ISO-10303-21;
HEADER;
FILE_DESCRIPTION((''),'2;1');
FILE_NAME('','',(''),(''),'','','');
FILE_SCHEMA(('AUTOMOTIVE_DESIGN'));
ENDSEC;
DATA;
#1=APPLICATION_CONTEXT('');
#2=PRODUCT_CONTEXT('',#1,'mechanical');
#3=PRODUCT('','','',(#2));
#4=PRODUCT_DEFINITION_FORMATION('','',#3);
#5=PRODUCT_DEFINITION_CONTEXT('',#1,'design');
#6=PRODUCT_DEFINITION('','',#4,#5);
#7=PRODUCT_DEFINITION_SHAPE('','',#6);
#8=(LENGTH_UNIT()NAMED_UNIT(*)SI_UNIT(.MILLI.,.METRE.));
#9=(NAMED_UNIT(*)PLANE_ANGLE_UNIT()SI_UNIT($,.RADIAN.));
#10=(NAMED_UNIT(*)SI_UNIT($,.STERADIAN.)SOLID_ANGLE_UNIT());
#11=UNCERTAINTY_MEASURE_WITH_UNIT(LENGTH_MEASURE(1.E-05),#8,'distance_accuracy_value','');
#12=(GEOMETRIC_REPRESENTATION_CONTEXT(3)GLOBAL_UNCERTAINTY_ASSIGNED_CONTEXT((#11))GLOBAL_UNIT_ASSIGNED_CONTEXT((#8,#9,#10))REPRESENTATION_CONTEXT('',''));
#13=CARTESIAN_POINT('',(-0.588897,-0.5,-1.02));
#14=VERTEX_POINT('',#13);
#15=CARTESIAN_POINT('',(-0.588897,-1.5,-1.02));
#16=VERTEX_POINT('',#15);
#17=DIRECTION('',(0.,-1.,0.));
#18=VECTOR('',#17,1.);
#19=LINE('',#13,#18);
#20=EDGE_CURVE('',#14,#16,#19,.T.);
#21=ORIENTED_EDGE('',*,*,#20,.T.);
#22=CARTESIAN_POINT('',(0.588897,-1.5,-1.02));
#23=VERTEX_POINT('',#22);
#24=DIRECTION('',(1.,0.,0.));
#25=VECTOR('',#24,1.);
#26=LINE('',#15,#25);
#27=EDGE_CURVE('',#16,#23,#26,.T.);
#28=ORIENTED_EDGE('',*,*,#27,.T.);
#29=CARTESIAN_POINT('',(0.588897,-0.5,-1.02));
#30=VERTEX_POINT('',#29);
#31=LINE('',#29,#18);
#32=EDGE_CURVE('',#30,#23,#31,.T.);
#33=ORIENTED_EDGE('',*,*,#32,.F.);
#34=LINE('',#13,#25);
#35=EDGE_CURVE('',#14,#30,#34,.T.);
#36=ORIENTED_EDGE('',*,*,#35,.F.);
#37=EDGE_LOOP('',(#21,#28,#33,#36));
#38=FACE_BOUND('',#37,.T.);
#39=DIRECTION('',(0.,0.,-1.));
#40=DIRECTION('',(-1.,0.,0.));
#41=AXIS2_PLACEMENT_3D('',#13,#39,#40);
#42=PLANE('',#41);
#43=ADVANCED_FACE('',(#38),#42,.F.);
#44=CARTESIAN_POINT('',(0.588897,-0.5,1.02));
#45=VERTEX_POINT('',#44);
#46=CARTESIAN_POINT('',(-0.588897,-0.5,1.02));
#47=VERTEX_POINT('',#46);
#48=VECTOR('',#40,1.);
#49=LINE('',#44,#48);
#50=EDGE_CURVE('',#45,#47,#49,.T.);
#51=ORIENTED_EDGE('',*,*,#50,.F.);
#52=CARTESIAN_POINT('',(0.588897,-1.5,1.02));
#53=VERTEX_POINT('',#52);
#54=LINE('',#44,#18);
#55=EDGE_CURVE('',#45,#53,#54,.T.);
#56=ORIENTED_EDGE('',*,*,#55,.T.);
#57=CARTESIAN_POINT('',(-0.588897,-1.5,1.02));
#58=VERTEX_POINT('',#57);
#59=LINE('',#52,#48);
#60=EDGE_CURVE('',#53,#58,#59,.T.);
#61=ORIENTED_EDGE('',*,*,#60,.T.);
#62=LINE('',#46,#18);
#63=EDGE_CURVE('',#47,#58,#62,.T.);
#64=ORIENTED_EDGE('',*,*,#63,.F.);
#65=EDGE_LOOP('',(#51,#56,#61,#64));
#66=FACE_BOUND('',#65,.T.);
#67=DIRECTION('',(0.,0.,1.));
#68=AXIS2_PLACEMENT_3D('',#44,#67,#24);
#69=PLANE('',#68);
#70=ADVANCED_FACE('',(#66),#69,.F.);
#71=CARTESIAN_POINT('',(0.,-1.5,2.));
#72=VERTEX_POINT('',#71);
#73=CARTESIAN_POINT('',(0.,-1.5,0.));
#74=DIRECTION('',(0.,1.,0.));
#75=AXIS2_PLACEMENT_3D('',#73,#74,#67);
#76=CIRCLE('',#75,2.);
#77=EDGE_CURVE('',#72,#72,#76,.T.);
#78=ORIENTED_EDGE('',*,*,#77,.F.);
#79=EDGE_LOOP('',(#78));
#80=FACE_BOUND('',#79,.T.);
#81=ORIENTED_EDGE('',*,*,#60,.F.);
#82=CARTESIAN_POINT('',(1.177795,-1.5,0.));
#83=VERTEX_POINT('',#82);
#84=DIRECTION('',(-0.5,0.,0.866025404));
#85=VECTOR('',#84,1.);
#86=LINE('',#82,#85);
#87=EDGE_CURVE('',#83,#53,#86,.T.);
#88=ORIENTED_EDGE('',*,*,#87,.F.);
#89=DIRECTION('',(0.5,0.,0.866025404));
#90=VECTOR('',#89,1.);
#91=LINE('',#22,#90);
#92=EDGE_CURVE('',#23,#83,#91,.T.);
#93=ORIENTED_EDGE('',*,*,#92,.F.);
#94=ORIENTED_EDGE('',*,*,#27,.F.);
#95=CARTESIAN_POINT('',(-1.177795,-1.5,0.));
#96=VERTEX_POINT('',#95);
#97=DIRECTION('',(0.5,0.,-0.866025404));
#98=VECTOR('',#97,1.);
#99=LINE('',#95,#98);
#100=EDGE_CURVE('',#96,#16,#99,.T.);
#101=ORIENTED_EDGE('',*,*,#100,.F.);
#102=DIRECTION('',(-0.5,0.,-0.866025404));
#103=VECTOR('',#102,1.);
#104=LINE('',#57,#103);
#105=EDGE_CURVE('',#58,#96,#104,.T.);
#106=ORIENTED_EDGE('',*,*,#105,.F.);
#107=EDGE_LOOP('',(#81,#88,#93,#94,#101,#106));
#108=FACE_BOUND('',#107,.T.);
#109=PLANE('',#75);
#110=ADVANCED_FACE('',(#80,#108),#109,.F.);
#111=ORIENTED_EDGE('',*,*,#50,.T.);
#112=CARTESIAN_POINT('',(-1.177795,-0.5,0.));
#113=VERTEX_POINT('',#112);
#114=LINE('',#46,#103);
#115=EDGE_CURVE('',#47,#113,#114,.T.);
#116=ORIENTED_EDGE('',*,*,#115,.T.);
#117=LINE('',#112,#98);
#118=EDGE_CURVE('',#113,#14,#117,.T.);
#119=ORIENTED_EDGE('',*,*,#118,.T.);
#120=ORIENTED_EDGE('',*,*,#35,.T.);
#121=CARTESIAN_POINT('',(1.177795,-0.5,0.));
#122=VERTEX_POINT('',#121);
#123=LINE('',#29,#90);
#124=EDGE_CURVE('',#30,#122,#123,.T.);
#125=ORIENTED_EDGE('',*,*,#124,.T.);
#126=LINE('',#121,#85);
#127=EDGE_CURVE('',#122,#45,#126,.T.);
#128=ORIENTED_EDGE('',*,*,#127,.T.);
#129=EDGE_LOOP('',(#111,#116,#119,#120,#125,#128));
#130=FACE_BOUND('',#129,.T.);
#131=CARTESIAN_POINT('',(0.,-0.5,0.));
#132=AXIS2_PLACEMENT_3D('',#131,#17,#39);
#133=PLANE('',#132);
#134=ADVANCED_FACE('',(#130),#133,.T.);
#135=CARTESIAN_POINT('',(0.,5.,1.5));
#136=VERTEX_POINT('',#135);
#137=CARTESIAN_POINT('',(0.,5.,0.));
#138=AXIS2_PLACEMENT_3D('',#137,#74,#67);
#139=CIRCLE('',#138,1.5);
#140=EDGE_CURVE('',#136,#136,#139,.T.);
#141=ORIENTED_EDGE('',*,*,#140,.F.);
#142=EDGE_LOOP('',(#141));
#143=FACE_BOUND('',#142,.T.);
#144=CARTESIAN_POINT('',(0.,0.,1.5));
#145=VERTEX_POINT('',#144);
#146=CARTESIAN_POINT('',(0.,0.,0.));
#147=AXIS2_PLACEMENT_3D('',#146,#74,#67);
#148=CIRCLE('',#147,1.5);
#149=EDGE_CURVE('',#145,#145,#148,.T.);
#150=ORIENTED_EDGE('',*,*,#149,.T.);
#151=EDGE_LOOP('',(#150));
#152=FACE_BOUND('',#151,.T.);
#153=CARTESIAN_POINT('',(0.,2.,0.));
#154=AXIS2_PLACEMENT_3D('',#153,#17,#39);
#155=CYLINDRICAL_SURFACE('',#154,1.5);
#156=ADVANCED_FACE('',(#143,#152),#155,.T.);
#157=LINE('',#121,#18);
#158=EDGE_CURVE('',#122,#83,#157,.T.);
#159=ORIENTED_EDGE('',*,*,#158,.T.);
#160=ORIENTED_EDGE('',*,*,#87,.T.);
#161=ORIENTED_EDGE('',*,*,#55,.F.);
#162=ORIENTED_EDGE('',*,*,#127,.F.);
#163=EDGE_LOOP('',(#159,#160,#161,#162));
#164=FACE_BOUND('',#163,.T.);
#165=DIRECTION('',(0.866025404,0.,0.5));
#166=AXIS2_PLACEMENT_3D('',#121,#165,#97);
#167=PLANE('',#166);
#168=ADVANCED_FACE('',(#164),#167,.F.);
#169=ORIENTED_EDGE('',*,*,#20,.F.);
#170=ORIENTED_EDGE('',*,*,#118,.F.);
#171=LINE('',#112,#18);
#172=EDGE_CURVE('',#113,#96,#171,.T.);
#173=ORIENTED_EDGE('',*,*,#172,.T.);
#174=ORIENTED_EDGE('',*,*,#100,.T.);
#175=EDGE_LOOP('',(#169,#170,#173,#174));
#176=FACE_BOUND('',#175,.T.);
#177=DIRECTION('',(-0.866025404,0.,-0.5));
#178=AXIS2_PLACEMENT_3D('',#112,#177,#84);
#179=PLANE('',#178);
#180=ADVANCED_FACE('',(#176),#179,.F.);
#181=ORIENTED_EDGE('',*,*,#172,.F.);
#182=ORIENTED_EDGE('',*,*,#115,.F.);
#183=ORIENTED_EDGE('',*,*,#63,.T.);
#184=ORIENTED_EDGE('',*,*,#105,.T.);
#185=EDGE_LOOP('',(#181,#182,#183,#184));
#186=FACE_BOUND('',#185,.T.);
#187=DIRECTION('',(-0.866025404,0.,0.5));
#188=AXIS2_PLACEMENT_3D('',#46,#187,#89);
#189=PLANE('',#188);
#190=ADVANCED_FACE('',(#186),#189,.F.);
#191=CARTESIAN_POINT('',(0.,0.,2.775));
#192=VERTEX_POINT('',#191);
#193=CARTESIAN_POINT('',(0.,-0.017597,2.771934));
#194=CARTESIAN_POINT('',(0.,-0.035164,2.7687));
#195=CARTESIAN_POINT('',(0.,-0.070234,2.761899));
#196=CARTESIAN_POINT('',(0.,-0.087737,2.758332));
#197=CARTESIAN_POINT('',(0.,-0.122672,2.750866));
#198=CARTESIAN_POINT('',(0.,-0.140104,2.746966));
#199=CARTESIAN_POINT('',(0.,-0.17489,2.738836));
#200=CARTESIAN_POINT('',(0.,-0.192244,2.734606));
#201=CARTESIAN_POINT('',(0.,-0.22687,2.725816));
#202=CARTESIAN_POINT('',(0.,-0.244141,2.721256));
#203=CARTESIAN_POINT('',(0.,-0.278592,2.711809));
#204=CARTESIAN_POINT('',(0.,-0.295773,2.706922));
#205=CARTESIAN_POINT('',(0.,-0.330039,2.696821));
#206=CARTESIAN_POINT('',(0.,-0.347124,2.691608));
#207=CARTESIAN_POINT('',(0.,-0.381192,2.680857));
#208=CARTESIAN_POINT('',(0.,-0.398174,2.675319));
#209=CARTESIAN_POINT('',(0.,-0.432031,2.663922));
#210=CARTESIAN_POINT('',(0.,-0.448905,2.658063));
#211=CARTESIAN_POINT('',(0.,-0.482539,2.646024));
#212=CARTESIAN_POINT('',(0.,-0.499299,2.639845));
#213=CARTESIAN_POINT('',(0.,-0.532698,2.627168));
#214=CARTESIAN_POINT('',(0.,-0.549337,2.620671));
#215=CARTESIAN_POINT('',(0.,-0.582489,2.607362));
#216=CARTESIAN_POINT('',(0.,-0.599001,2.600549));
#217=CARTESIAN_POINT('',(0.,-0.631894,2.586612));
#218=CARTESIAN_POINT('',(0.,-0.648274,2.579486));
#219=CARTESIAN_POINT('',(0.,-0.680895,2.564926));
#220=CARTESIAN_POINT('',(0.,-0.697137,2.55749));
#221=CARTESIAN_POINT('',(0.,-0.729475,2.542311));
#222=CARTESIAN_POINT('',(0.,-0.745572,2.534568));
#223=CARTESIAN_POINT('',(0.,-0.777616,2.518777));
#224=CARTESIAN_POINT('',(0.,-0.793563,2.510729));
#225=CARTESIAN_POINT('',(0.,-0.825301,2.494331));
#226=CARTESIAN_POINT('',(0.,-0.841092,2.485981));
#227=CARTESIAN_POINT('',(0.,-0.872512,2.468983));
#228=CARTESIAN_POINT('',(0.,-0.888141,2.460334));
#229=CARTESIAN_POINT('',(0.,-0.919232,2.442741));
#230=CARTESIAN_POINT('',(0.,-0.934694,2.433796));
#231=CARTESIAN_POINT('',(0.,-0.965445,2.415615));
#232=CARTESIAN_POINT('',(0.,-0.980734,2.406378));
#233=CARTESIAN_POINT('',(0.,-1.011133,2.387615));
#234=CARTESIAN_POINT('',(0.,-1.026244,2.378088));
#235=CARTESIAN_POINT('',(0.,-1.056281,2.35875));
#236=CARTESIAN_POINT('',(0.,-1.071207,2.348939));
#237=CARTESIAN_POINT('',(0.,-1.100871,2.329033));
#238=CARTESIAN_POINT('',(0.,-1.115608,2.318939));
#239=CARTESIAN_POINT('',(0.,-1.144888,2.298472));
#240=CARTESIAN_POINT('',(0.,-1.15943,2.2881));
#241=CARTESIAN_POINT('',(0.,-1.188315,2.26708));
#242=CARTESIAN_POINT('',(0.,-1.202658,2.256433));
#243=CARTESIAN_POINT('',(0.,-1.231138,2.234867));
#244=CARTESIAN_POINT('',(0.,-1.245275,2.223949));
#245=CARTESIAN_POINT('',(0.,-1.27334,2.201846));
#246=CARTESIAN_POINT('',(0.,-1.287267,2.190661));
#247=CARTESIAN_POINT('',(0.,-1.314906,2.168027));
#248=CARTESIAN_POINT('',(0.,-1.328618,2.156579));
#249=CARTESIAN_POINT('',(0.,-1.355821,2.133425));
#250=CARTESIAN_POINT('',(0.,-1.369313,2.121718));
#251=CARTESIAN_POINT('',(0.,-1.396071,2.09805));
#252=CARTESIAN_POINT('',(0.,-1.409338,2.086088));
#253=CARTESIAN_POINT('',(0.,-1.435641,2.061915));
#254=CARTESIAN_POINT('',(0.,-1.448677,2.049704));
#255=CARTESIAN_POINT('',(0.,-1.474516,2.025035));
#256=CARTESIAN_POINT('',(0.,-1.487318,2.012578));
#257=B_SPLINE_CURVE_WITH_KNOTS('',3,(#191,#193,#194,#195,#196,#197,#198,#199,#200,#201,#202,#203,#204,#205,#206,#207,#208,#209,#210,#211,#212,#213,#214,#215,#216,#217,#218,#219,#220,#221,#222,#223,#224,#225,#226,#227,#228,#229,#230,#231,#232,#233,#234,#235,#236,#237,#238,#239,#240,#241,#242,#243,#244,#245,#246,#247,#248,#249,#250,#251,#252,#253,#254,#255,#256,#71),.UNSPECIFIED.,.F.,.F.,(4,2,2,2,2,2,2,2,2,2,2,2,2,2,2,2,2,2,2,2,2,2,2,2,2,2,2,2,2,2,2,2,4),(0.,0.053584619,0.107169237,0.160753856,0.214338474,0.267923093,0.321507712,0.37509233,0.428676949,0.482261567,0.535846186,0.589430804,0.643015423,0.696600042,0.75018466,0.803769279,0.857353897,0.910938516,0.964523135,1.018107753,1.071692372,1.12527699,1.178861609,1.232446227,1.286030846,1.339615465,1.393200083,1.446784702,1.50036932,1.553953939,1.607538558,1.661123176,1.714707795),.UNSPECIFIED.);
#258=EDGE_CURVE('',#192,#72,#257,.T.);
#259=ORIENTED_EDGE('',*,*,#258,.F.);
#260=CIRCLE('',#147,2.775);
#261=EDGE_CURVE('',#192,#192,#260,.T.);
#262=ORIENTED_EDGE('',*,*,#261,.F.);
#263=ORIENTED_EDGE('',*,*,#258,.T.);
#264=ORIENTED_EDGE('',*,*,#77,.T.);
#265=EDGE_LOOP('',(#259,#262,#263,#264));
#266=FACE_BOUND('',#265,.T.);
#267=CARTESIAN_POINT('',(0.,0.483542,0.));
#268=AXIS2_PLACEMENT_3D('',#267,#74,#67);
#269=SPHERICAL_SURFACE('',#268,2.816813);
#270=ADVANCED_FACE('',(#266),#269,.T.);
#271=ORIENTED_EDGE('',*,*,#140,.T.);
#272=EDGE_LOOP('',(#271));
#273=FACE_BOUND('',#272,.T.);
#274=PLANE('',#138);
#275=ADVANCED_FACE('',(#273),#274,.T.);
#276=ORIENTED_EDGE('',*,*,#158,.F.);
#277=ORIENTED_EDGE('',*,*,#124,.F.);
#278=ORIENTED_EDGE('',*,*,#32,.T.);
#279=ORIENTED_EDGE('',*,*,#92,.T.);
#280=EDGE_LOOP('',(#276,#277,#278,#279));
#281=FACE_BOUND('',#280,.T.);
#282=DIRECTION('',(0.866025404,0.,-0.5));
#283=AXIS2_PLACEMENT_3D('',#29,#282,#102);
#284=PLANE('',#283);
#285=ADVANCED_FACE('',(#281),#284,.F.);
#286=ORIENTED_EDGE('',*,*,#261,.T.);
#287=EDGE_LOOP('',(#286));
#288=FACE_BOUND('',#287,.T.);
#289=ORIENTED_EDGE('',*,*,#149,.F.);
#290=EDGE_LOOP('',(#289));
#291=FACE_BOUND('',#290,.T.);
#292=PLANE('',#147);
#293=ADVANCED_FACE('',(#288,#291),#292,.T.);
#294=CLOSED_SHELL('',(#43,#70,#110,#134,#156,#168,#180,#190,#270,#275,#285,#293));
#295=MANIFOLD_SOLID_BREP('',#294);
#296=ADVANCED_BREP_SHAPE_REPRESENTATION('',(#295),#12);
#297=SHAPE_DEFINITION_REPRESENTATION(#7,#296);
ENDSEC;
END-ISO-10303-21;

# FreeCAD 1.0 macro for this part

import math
import FreeCAD as App
import Part
import Sketcher
from FreeCAD import Vector
Q = App.Units.Quantity


def add_polygon(sketch, points):
    """Adds a closed chain of lines whose ends are joined by coincident constraints."""
    first, n = sketch.GeometryCount, len(points)
    for a, b in zip(points, points[1:] + points[:1]):
        sketch.addGeometry(Part.LineSegment(App.Vector(*a, 0), App.Vector(*b, 0)), False)
    for i in range(n):
        sketch.addConstraint(Sketcher.Constraint("Coincident", first + i, 2, first + (i + 1) % n, 1))

doc = App.newDocument("Part")
body = doc.addObject("PartDesign::Body", "Body")

sketch1 = body.newObject("Sketcher::SketchObject", "Sketch")
sketch1.AttachmentSupport = (doc.getObject("XZ_Plane"), [""])
sketch1.MapMode = "FlatFace"
sketch1.addGeometry(Part.Circle(Vector(0, 0, 0), Vector(0, 0, 1), 1.5), False)
sketch1.addConstraint([
    Sketcher.Constraint("Coincident", 0, 3, -1, 1),
    Sketcher.Constraint("Diameter", 0, Q("3 mm")),
])
pad1 = body.newObject("PartDesign::Pad", "Pad")
pad1.Profile = sketch1
pad1.Length = 2
pad1.Reversed = True

sketch2 = body.newObject("Sketcher::SketchObject", "Sketch001")
sketch2.AttachmentSupport = (doc.getObject("XZ_Plane"), [""])
sketch2.MapMode = "FlatFace"
sketch2.addGeometry(Part.Circle(Vector(0, 0, 0), Vector(0, 0, 1), 2.775), False)
sketch2.addConstraint([
    Sketcher.Constraint("Coincident", 0, 3, -1, 1),
    Sketcher.Constraint("Diameter", 0, Q("5.55 mm")),
])
pad2 = body.newObject("PartDesign::Pad", "Pad001")
pad2.Profile = sketch2
pad2.Length = 1.5

sketch3 = body.newObject("Sketcher::SketchObject", "Sketch002")
sketch3.AttachmentSupport = (doc.getObject("YZ_Plane"), [""])
sketch3.MapMode = "FlatFace"
sketch3.addGeometry([
    Part.LineSegment(Vector(0, 2.775, 0), Vector(-1.5, 2.775, 0)),
    Part.LineSegment(Vector(-1.5, 2.775, 0), Vector(-1.5, 2, 0)),
    Part.ArcOfCircle(Part.Circle(Vector(0.483542, 0, 0), Vector(0, 0, 1), 2.816813), math.radians(99.884504), math.radians(134.763279)),
], False)
sketch3.addConstraint([
    Sketcher.Constraint("Coincident", 0, 2, 1, 1),
    Sketcher.Constraint("Coincident", 1, 2, 2, 2),
    Sketcher.Constraint("Coincident", 2, 1, 0, 1),
    Sketcher.Constraint("Horizontal", 0),
    Sketcher.Constraint("Vertical", 1),
    Sketcher.Constraint("PointOnObject", 2, 3, -1),
    Sketcher.Constraint("PointOnObject", 2, 1, -2),
    Sketcher.Constraint("DistanceX", 0, 2, 0, 1, Q("1.5 mm")),
    Sketcher.Constraint("DistanceY", -1, 1, 1, 2, Q("2 mm")),
    Sketcher.Constraint("DistanceY", 1, 2, 1, 1, Q("0.775 mm")),
])
groove = body.newObject("PartDesign::Groove", "Groove")
groove.Profile = sketch3
groove.ReferenceAxis = (sketch3, ["H_Axis"])
groove.Angle = 360

sketch4 = body.newObject("Sketcher::SketchObject", "Sketch003")
sketch4.AttachmentSupport = (doc.getObject("XZ_Plane"), [""])
sketch4.MapMode = "FlatFace"
sketch4.AttachmentOffset = App.Placement(Vector(0, 0, 1.5), App.Rotation())
add_polygon(sketch4, [(-1.177795, 0), (-0.588897, -1.02), (0.588897, -1.02), (1.177795, 0), (0.588897, 1.02), (-0.588897, 1.02)])
sketch4.addConstraint([
    Sketcher.Constraint("Horizontal", 1),
    Sketcher.Constraint("Horizontal", 4),
    Sketcher.Constraint("Symmetric", 0, 2, 3, 2, -1, 1),
    Sketcher.Constraint("Symmetric", 2, 2, 5, 2, -1, 1),
    Sketcher.Constraint("PointOnObject", 2, 2, -1),
    Sketcher.Constraint("Parallel", 2, 5),
    Sketcher.Constraint("Vertical", 1, 2, 3, 2),
    Sketcher.Constraint("Angle", 0, Q("-60 deg")),
    Sketcher.Constraint("DistanceY", 0, 2, -1, 1, Q("1.02 mm")),
    Sketcher.Constraint("DistanceX", 1, 1, 1, 2, Q("1.177795 mm")),
])
pocket1 = body.newObject("PartDesign::Pocket", "Pocket")
pocket1.Profile = sketch4
pocket1.Length = 1

sketch5 = body.newObject("Sketcher::SketchObject", "Sketch004")
sketch5.AttachmentSupport = (doc.getObject("XZ_Plane"), [""])
sketch5.MapMode = "FlatFace"
sketch5.addGeometry(Part.Circle(Vector(0, 0, 0), Vector(0, 0, 1), 1.5), False)
sketch5.addConstraint([
    Sketcher.Constraint("Coincident", 0, 3, -1, 1),
    Sketcher.Constraint("Diameter", 0, Q("3 mm")),
])
pad3 = body.newObject("PartDesign::Pad", "Pad002")
pad3.Profile = sketch5
pad3.Length = 5
pad3.Reversed = True

doc.recompute()
